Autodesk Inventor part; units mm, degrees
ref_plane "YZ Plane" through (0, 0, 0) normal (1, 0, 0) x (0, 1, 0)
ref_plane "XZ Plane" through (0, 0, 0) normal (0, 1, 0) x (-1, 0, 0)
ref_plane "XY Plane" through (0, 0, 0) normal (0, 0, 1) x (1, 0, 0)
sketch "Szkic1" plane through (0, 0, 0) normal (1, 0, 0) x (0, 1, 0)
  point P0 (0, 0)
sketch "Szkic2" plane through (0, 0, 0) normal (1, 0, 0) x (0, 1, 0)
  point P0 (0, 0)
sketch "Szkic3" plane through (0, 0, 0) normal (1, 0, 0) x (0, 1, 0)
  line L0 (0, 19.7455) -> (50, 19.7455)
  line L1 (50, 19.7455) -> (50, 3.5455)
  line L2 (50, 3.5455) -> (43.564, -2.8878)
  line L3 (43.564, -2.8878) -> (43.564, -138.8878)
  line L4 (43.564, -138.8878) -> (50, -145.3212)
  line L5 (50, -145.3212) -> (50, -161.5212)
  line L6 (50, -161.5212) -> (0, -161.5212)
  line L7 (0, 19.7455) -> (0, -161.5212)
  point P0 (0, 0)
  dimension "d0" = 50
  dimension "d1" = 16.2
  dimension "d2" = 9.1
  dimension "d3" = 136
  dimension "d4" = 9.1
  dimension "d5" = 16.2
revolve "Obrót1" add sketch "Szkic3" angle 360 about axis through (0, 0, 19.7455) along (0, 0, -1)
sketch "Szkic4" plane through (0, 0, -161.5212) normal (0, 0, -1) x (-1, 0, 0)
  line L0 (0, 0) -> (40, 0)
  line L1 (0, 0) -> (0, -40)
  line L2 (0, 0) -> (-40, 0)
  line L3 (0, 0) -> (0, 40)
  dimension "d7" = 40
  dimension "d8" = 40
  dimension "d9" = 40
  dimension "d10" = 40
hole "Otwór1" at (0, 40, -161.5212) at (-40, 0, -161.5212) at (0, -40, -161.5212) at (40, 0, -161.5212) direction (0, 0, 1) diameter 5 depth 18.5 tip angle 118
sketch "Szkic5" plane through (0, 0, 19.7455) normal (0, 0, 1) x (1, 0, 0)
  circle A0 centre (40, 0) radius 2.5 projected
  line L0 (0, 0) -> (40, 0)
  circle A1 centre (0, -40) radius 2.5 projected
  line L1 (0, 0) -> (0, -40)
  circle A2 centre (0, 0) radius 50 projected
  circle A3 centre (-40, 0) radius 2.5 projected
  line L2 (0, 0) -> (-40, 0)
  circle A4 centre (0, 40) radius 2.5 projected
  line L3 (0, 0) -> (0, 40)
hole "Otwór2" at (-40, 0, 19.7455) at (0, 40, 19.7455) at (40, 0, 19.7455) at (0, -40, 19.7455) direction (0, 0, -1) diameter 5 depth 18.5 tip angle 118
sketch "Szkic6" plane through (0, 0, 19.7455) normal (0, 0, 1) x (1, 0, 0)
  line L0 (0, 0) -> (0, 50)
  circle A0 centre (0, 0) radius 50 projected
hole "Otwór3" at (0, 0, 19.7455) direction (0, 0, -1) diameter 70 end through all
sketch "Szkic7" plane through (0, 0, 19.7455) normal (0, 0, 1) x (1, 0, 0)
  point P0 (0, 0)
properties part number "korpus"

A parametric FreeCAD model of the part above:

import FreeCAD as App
import Part
import Sketcher
Q = App.Units.Quantity

doc = App.newDocument("Part")
body = doc.addObject("PartDesign::Body", "Body")

# Sketch on YZ plane
sketch1 = body.newObject("Sketcher::SketchObject", "Sketch")
sketch1.AttachmentSupport = (doc.getObject("YZ_Plane"), [""])
sketch1.MapMode = "FlatFace"
sketch1.addGeometry(Part.LineSegment(App.Vector(50, 19.7455, 0), App.Vector(0, 19.7455, 0)), False)
sketch1.addGeometry(Part.LineSegment(App.Vector(0, 19.7455, 0), App.Vector(0, -161.5212, 0)), False)
sketch1.addGeometry(Part.LineSegment(App.Vector(0, -161.5212, 0), App.Vector(50, -161.5212, 0)), False)
sketch1.addGeometry(Part.LineSegment(App.Vector(50, -161.5212, 0), App.Vector(50, -145.3212, 0)), False)
sketch1.addGeometry(Part.LineSegment(App.Vector(50, -145.3212, 0), App.Vector(43.564, -138.8878, 0)), False)
sketch1.addGeometry(Part.LineSegment(App.Vector(43.564, -138.8878, 0), App.Vector(43.564, -2.8878, 0)), False)
sketch1.addGeometry(Part.LineSegment(App.Vector(43.564, -2.8878, 0), App.Vector(50, 3.5455, 0)), False)
sketch1.addGeometry(Part.LineSegment(App.Vector(50, 3.5455, 0), App.Vector(50, 19.7455, 0)), False)
sketch1.addConstraint(Sketcher.Constraint("Coincident", 0, 2, 1, 1))
sketch1.addConstraint(Sketcher.Constraint("Coincident", 1, 2, 2, 1))
sketch1.addConstraint(Sketcher.Constraint("Coincident", 2, 2, 3, 1))
sketch1.addConstraint(Sketcher.Constraint("Coincident", 3, 2, 4, 1))
sketch1.addConstraint(Sketcher.Constraint("Coincident", 4, 2, 5, 1))
sketch1.addConstraint(Sketcher.Constraint("Coincident", 5, 2, 6, 1))
sketch1.addConstraint(Sketcher.Constraint("Coincident", 6, 2, 7, 1))
sketch1.addConstraint(Sketcher.Constraint("Coincident", 7, 2, 0, 1))
sketch1.addConstraint(Sketcher.Constraint("Horizontal", 0))
sketch1.addConstraint(Sketcher.Constraint("Vertical", 1))
sketch1.addConstraint(Sketcher.Constraint("Horizontal", 2))
sketch1.addConstraint(Sketcher.Constraint("Vertical", 3))
sketch1.addConstraint(Sketcher.Constraint("Vertical", 5))
sketch1.addConstraint(Sketcher.Constraint("Vertical", 7))
sketch1.addConstraint(Sketcher.Constraint("PointOnObject", 0, 2, -2))
sketch1.addConstraint(Sketcher.Constraint("DistanceX", 0, 2, 0, 1, Q("50 mm")))
sketch1.addConstraint(Sketcher.Constraint("DistanceX", 2, 1, 2, 2, Q("50 mm")))
sketch1.addConstraint(Sketcher.Constraint("DistanceY", 5, 1, 5, 2, Q("136 mm")))
sketch1.addConstraint(Sketcher.Constraint("DistanceY", 3, 1, 3, 2, Q("16.2 mm")))
sketch1.addConstraint(Sketcher.Constraint("DistanceY", 7, 1, 7, 2, Q("16.2 mm")))
sketch1.addConstraint(Sketcher.Constraint("Distance", 4, Q("9.1 mm")))
sketch1.addConstraint(Sketcher.Constraint("Distance", 6, Q("9.1 mm")))
sketch1.addConstraint(Sketcher.Constraint("DistanceY", 1, 2, 1, 1, Q("181.2667 mm")))
sketch1.addConstraint(Sketcher.Constraint("DistanceY", -1, 1, 0, 2, Q("19.7455 mm")))
revolution = body.newObject("PartDesign::Revolution", "Revolution")
revolution.Profile = sketch1
revolution.ReferenceAxis = (sketch1, ["V_Axis"])
revolution.Angle = 360

# Sketch on XY plane
sketch2 = body.newObject("Sketcher::SketchObject", "Sketch001")
sketch2.AttachmentSupport = (doc.getObject("XY_Plane"), [""])
sketch2.MapMode = "FlatFace"
sketch2.AttachmentOffset = App.Placement(App.Vector(0, 0, -161.5212), App.Rotation())
sketch2.addGeometry(Part.Circle(App.Vector(0, 40, 0), App.Vector(0, 0, 1), 2.5), False)
sketch2.addGeometry(Part.Circle(App.Vector(-40, 0, 0), App.Vector(0, 0, 1), 2.5), False)
sketch2.addGeometry(Part.Circle(App.Vector(0, -40, 0), App.Vector(0, 0, 1), 2.5), False)
sketch2.addGeometry(Part.Circle(App.Vector(40, 0, 0), App.Vector(0, 0, 1), 2.5), False)
sketch2.addConstraint(Sketcher.Constraint("Equal", 0, 1))
sketch2.addConstraint(Sketcher.Constraint("Equal", 1, 2))
sketch2.addConstraint(Sketcher.Constraint("Equal", 2, 3))
sketch2.addConstraint(Sketcher.Constraint("Symmetric", 0, 3, 2, 3, -1, 1))
sketch2.addConstraint(Sketcher.Constraint("Symmetric", 1, 3, 3, 3, -1, 1))
sketch2.addConstraint(Sketcher.Constraint("PointOnObject", 0, 3, -2))
sketch2.addConstraint(Sketcher.Constraint("PointOnObject", 1, 3, -1))
sketch2.addConstraint(Sketcher.Constraint("Diameter", 0, Q("5 mm")))
sketch2.addConstraint(Sketcher.Constraint("DistanceY", -1, 1, 0, 3, Q("40 mm")))
sketch2.addConstraint(Sketcher.Constraint("DistanceX", 1, 3, -1, 1, Q("40 mm")))
doc.recompute()
hole = body.newObject("PartDesign::Hole", "Hole")
hole.Profile = sketch2
hole.ThreadType = "None"
hole.Diameter = 5
hole.DepthType = "Dimension"
hole.Depth = 18.5
hole.DrillPoint = "Angled"
hole.DrillPointAngle = 118
hole.Reversed = True

# Sketch on XY plane
sketch3 = body.newObject("Sketcher::SketchObject", "Sketch002")
sketch3.AttachmentSupport = (doc.getObject("XY_Plane"), [""])
sketch3.MapMode = "FlatFace"
sketch3.AttachmentOffset = App.Placement(App.Vector(0, 0, 19.7455), App.Rotation())
sketch3.addGeometry(Part.Circle(App.Vector(-40, 0, 0), App.Vector(0, 0, 1), 2.5), False)
sketch3.addGeometry(Part.Circle(App.Vector(0, 40, 0), App.Vector(0, 0, 1), 2.5), False)
sketch3.addGeometry(Part.Circle(App.Vector(40, 0, 0), App.Vector(0, 0, 1), 2.5), False)
sketch3.addGeometry(Part.Circle(App.Vector(0, -40, 0), App.Vector(0, 0, 1), 2.5), False)
sketch3.addConstraint(Sketcher.Constraint("Equal", 0, 1))
sketch3.addConstraint(Sketcher.Constraint("Equal", 1, 2))
sketch3.addConstraint(Sketcher.Constraint("Equal", 2, 3))
sketch3.addConstraint(Sketcher.Constraint("Symmetric", 0, 3, 2, 3, -1, 1))
sketch3.addConstraint(Sketcher.Constraint("Symmetric", 1, 3, 3, 3, -1, 1))
sketch3.addConstraint(Sketcher.Constraint("PointOnObject", 0, 3, -1))
sketch3.addConstraint(Sketcher.Constraint("PointOnObject", 1, 3, -2))
sketch3.addConstraint(Sketcher.Constraint("Diameter", 0, Q("5 mm")))
sketch3.addConstraint(Sketcher.Constraint("DistanceX", 0, 3, -1, 1, Q("40 mm")))
sketch3.addConstraint(Sketcher.Constraint("DistanceY", -1, 1, 1, 3, Q("40 mm")))
doc.recompute()
hole2 = body.newObject("PartDesign::Hole", "Hole001")
hole2.Profile = sketch3
hole2.ThreadType = "None"
hole2.Diameter = 5
hole2.DepthType = "Dimension"
hole2.Depth = 18.5
hole2.DrillPoint = "Angled"
hole2.DrillPointAngle = 118

# Sketch on XY plane
sketch4 = body.newObject("Sketcher::SketchObject", "Sketch003")
sketch4.AttachmentSupport = (doc.getObject("XY_Plane"), [""])
sketch4.MapMode = "FlatFace"
sketch4.AttachmentOffset = App.Placement(App.Vector(0, 0, 19.7455), App.Rotation())
sketch4.addGeometry(Part.Circle(App.Vector(0, 0, 0), App.Vector(0, 0, 1), 35), False)
sketch4.addConstraint(Sketcher.Constraint("Coincident", 0, 3, -1, 1))
sketch4.addConstraint(Sketcher.Constraint("Diameter", 0, Q("70 mm")))
doc.recompute()
hole3 = body.newObject("PartDesign::Hole", "Hole002")
hole3.Profile = sketch4
hole3.ThreadType = "None"
hole3.Diameter = 70
hole3.DepthType = "ThroughAll"

doc.recompute()
